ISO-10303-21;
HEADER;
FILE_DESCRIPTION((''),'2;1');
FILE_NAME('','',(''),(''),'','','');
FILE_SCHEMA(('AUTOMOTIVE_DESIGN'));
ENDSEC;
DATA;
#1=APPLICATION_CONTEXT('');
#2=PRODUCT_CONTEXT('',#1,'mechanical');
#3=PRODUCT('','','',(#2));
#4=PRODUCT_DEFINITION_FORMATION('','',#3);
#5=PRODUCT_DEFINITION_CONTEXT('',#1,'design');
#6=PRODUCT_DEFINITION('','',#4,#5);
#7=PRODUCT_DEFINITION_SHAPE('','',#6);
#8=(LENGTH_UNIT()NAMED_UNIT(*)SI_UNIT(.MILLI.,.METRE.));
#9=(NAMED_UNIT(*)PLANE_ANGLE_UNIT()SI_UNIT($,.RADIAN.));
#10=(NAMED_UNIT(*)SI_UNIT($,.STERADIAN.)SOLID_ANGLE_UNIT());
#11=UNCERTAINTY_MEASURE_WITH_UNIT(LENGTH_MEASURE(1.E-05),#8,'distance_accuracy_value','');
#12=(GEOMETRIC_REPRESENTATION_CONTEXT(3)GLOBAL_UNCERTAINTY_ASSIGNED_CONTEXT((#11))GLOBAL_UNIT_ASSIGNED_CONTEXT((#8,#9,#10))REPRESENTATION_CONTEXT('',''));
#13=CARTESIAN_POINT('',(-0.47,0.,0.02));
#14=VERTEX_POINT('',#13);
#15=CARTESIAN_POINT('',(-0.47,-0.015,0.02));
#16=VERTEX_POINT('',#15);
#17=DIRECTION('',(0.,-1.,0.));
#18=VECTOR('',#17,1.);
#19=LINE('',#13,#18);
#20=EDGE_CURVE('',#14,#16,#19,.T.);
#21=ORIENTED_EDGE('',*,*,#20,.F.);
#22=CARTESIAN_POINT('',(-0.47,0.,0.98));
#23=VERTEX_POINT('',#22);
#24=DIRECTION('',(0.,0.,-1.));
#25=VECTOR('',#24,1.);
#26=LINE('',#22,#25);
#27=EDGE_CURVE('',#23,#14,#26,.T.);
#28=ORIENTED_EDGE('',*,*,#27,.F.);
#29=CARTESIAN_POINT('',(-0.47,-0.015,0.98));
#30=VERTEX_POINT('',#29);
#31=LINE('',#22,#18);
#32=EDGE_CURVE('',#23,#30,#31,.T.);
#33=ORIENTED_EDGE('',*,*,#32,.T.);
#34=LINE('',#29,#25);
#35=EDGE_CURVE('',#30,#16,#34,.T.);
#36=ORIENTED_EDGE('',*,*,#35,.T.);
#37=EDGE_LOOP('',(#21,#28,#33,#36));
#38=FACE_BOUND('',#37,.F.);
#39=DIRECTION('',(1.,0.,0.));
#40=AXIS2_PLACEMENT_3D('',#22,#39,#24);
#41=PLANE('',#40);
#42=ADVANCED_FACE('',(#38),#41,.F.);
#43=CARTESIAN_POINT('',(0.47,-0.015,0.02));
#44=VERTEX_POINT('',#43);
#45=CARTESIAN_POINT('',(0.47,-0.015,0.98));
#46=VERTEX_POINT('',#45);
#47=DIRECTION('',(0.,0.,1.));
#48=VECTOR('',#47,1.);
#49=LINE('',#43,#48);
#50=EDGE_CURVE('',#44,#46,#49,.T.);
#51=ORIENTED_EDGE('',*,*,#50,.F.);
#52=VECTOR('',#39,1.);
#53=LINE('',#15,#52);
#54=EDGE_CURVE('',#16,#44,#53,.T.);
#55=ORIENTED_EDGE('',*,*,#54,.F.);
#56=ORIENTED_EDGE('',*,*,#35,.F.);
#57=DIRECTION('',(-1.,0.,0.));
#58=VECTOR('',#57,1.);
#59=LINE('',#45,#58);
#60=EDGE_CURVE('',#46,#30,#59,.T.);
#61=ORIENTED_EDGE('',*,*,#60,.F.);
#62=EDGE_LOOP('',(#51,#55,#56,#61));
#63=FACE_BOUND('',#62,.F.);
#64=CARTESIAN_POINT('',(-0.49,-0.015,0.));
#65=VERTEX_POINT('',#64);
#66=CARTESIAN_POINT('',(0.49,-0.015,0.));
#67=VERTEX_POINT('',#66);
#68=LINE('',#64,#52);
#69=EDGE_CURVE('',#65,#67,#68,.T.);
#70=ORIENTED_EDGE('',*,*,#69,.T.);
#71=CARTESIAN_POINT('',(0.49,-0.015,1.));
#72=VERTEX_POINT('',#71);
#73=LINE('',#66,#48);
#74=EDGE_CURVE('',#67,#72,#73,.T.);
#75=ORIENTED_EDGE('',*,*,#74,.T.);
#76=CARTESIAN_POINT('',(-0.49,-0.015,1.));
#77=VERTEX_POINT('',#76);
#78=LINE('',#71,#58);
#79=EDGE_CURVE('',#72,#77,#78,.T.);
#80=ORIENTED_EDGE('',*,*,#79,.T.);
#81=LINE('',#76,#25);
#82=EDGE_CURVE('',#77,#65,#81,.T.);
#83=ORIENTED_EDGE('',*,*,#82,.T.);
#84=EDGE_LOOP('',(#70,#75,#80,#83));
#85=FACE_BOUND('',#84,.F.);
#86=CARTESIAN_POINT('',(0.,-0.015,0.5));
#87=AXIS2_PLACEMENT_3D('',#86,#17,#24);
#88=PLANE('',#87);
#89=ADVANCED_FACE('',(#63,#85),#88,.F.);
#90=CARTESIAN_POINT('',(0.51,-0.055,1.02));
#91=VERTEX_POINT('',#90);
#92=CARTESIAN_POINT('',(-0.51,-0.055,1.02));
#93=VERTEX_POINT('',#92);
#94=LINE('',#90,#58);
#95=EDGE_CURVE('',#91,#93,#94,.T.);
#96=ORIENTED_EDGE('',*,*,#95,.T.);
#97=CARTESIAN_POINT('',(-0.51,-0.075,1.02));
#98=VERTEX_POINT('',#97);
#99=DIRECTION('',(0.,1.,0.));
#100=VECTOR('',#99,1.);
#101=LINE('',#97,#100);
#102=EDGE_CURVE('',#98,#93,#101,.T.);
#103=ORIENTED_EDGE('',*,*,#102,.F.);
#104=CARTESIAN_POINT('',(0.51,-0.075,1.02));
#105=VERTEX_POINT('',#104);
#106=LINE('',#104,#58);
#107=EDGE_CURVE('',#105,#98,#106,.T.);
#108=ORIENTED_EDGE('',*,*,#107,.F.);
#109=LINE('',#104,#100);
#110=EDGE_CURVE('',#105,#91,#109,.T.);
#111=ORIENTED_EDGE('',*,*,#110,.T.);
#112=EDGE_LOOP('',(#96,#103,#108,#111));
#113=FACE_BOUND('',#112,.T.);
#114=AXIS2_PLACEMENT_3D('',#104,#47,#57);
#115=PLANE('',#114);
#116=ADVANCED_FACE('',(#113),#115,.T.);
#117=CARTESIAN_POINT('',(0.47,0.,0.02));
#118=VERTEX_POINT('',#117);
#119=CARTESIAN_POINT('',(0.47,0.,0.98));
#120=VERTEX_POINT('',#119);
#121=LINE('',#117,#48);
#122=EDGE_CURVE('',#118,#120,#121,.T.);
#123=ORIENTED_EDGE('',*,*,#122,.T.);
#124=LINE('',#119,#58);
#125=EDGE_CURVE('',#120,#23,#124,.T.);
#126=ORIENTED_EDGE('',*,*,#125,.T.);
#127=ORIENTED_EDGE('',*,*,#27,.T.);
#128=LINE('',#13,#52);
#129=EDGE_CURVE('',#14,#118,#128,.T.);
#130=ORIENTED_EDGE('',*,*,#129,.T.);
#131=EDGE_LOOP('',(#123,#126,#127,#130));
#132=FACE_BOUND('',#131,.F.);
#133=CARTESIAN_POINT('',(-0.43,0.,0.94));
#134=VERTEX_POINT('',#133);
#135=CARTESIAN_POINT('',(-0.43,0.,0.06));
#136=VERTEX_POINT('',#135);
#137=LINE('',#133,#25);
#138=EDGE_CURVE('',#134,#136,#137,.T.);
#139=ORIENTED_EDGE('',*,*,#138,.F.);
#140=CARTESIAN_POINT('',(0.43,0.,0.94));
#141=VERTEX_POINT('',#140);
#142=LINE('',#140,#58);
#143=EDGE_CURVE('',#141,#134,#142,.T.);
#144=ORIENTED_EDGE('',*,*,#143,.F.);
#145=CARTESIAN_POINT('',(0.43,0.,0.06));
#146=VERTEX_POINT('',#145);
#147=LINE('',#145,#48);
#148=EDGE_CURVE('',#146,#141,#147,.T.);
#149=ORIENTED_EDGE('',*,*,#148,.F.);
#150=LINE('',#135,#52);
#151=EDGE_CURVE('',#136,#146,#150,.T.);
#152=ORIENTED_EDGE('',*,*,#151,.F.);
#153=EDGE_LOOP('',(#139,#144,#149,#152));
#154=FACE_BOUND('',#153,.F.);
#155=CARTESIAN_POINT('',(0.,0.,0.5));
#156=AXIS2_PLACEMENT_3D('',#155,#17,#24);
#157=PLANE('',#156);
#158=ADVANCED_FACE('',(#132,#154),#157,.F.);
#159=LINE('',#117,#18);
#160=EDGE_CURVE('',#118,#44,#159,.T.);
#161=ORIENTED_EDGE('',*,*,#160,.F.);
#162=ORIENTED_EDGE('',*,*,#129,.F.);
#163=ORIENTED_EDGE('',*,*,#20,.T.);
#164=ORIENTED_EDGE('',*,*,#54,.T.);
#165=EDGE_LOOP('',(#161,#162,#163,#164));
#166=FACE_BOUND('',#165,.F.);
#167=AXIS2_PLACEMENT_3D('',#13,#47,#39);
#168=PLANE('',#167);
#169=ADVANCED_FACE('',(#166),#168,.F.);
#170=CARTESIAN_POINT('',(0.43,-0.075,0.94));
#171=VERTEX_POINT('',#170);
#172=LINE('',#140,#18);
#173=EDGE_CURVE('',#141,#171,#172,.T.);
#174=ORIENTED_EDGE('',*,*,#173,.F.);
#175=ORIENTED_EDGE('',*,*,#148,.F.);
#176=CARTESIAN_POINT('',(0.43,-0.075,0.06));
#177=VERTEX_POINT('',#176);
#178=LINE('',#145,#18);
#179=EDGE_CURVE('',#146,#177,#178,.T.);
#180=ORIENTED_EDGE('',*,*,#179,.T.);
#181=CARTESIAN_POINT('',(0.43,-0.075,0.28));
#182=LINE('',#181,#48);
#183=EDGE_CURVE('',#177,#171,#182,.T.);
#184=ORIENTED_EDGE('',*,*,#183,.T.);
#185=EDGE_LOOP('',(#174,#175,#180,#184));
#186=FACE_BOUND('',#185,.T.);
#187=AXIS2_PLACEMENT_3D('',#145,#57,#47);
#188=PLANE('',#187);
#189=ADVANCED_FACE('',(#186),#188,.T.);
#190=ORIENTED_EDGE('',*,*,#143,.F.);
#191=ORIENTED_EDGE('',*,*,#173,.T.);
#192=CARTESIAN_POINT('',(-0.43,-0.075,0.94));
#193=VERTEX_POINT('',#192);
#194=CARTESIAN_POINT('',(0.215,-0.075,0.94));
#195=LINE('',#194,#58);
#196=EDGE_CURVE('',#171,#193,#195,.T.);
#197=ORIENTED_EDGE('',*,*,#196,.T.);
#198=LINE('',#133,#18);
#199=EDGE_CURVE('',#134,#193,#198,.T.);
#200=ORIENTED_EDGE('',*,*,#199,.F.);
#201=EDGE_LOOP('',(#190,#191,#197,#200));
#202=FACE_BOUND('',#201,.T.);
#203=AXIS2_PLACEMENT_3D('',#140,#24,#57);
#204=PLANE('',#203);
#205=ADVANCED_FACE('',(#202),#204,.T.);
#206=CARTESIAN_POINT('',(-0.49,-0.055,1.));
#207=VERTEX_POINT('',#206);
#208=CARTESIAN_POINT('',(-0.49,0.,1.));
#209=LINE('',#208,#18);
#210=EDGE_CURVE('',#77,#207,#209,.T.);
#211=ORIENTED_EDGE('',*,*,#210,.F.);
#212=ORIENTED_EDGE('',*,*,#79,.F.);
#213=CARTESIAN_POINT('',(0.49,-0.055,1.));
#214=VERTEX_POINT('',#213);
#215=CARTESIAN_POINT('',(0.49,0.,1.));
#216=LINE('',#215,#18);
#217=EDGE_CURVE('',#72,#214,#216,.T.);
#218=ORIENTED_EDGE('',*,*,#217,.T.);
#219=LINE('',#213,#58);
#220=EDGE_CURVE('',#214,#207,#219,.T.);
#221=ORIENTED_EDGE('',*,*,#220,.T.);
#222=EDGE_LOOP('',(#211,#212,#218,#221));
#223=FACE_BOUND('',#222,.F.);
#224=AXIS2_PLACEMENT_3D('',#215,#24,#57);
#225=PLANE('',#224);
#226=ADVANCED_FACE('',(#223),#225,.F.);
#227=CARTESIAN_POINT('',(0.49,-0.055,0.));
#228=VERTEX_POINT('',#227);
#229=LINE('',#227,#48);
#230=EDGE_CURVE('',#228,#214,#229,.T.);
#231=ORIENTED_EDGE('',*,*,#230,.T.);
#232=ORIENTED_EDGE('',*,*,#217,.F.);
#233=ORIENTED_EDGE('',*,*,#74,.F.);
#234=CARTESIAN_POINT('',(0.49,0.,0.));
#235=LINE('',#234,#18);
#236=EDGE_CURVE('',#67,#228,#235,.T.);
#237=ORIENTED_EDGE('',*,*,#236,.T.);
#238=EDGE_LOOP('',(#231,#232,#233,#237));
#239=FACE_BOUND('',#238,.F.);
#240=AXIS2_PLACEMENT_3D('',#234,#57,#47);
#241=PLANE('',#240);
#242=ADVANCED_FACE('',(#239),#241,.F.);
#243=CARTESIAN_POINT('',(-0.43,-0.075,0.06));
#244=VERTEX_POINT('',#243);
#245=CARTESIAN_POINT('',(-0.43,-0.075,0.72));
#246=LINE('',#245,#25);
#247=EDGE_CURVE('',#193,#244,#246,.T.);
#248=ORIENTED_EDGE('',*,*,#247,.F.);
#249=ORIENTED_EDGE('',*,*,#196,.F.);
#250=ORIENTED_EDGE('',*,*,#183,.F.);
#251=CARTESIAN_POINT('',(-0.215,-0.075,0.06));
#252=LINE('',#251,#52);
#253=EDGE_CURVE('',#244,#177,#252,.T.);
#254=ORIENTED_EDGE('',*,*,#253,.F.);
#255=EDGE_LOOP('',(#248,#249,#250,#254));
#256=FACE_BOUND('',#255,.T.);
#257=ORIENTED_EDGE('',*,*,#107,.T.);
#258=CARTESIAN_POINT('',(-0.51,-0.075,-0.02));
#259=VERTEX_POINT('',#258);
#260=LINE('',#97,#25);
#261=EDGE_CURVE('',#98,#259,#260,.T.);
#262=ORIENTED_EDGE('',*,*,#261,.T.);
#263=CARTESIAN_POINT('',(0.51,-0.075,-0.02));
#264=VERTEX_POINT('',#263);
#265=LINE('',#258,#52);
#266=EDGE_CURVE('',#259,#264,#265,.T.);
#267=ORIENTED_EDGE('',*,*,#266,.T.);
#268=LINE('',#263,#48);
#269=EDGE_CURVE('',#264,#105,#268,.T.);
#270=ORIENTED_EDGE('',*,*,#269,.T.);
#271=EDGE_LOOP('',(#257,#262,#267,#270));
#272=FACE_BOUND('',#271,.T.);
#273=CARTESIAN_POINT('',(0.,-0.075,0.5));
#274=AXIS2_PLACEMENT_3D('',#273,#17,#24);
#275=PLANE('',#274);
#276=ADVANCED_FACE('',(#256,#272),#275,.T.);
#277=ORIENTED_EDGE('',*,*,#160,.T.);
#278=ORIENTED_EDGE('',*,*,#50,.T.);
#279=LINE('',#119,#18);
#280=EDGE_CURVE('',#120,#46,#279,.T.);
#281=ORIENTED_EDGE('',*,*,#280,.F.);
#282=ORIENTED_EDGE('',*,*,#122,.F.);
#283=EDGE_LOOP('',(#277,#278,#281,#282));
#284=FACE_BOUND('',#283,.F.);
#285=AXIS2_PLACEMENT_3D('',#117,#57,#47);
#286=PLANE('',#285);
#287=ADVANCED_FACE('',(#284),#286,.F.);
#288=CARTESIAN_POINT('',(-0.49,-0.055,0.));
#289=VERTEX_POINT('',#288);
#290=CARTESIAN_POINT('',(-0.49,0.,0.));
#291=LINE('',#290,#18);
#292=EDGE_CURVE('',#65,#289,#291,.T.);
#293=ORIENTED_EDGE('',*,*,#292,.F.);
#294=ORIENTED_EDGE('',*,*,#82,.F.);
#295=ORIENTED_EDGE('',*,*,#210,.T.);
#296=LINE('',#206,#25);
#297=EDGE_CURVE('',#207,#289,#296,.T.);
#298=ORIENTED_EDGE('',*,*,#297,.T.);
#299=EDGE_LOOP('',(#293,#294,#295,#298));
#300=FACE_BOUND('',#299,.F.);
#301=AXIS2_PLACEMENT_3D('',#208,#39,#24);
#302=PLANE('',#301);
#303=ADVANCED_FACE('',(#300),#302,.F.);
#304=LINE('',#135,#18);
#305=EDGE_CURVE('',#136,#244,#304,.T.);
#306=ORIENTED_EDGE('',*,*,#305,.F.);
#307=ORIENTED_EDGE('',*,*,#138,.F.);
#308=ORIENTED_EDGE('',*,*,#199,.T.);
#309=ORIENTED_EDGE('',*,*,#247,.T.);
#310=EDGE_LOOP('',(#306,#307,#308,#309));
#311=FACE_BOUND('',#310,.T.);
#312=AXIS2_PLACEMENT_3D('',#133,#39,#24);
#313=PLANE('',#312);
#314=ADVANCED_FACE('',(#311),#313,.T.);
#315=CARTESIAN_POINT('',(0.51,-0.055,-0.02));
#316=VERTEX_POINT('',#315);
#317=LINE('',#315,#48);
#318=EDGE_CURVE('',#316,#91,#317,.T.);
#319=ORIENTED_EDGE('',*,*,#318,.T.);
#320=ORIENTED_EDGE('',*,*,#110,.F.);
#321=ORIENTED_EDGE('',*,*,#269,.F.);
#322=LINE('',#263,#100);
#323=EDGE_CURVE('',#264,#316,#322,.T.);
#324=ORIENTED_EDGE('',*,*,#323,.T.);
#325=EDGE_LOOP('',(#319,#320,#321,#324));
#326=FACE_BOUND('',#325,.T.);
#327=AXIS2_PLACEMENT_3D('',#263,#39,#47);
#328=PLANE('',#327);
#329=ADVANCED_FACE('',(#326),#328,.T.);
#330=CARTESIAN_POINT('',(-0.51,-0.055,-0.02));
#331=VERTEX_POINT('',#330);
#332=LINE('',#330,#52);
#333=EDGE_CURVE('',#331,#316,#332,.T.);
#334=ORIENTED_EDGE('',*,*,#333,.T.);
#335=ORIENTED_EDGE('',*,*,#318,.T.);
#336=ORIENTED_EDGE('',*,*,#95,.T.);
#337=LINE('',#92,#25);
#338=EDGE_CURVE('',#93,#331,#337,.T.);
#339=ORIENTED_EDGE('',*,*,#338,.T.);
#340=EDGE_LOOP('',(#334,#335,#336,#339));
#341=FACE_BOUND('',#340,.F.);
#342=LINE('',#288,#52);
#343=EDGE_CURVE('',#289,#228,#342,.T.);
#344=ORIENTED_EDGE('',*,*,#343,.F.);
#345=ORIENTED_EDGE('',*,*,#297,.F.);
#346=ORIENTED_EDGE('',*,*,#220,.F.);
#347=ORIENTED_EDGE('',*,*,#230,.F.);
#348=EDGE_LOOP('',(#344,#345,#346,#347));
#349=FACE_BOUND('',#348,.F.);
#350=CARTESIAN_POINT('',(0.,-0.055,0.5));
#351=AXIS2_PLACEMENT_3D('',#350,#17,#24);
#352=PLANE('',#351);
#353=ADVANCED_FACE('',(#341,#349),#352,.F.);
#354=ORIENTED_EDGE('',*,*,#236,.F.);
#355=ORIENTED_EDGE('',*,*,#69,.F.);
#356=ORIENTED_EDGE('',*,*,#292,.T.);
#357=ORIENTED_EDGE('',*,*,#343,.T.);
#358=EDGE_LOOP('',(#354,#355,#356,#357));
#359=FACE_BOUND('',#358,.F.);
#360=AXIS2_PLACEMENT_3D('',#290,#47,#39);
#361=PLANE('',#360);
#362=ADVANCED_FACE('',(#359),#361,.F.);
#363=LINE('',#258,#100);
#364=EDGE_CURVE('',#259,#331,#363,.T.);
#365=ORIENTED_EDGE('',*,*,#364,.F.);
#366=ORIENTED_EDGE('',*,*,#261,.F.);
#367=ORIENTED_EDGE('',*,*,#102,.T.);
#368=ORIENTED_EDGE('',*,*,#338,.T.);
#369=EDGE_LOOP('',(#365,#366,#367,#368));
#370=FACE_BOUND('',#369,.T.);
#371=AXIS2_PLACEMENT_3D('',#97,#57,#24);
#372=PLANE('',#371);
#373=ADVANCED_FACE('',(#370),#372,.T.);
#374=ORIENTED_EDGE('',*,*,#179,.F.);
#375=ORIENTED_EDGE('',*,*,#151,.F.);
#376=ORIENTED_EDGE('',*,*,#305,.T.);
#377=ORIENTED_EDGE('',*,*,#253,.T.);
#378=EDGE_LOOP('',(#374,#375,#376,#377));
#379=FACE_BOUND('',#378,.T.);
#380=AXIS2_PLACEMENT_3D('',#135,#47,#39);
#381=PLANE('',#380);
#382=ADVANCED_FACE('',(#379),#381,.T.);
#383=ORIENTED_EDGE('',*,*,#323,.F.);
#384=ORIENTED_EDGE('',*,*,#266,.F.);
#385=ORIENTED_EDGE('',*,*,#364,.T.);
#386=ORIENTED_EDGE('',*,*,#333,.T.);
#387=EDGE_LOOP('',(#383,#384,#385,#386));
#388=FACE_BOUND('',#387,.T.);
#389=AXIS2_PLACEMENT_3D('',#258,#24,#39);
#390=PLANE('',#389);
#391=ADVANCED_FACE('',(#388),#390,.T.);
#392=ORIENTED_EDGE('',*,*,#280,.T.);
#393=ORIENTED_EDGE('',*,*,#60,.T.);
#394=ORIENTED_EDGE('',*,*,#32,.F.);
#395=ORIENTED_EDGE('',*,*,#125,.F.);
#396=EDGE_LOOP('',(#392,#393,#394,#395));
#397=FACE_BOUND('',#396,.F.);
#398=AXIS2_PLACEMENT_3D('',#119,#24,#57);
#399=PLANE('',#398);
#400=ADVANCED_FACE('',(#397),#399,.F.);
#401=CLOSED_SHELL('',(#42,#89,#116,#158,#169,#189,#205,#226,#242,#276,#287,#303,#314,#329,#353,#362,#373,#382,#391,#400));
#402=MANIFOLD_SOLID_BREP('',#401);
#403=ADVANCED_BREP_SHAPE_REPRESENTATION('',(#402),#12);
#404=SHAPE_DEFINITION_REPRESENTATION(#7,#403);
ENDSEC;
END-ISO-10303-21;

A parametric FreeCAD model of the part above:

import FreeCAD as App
import Part
import Sketcher

doc = App.newDocument("Part")
body = doc.addObject("PartDesign::Body", "Body")

# Sketch on XZ plane
sketch1 = body.newObject("Sketcher::SketchObject", "Sketch")
sketch1.AttachmentSupport = (doc.getObject("XZ_Plane"), [""])
sketch1.MapMode = "FlatFace"
sketch1.addGeometry([
    Part.LineSegment(App.Vector(-0.5, 1, 0), App.Vector(-0.5, 0, 0)),
    Part.LineSegment(App.Vector(-0.5, 0, 0), App.Vector(0.5, 0, 0)),
    Part.LineSegment(App.Vector(0.5, 0, 0), App.Vector(0.5, 1, 0)),
    Part.LineSegment(App.Vector(0.5, 1, 0), App.Vector(-0.5, 1, 0)),
], False)
sketch1.addConstraint([
    Sketcher.Constraint("Coincident", 0, 2, 1, 1),
    Sketcher.Constraint("Coincident", 1, 2, 2, 1),
    Sketcher.Constraint("Coincident", 2, 2, 3, 1),
    Sketcher.Constraint("Coincident", 3, 2, 0, 1),
    Sketcher.Constraint("Vertical", 0),
    Sketcher.Constraint("Horizontal", 1),
    Sketcher.Constraint("Vertical", 2),
    Sketcher.Constraint("Horizontal", 3),
    Sketcher.Constraint("Symmetric", 0, 2, 1, 2, -1, 1),
    Sketcher.Constraint("DistanceY", 0, 2, 0, 1, 1.0),
    Sketcher.Constraint("DistanceX", 0, 2, -1, 1, 0.49),
])
pad1 = body.newObject("PartDesign::Pad", "Pad")
pad1.Profile = sketch1
pad1.Length = 0.075

# Sketch on XZ plane
sketch2 = body.newObject("Sketcher::SketchObject", "Sketch001")
sketch2.AttachmentSupport = (doc.getObject("XZ_Plane"), [""])
sketch2.MapMode = "FlatFace"
sketch2.addGeometry([
    Part.LineSegment(App.Vector(-0.4, 0.9, 0), App.Vector(0.4, 0.9, 0)),
    Part.LineSegment(App.Vector(0.4, 0.9, 0), App.Vector(0.4, 0.1, 0)),
    Part.LineSegment(App.Vector(0.4, 0.1, 0), App.Vector(-0.4, 0.1, 0)),
    Part.LineSegment(App.Vector(-0.4, 0.1, 0), App.Vector(-0.4, 0.9, 0)),
], False)
sketch2.addConstraint([
    Sketcher.Constraint("Coincident", 0, 2, 1, 1),
    Sketcher.Constraint("Coincident", 1, 2, 2, 1),
    Sketcher.Constraint("Coincident", 2, 2, 3, 1),
    Sketcher.Constraint("Coincident", 3, 2, 0, 1),
    Sketcher.Constraint("Horizontal", 0),
    Sketcher.Constraint("Vertical", 1),
    Sketcher.Constraint("Horizontal", 2),
    Sketcher.Constraint("Vertical", 3),
    Sketcher.Constraint("DistanceX", 0, 1, 0, 2, 0.86),
    Sketcher.Constraint("DistanceY", 1, 2, 1, 1, 0.88),
    Sketcher.Constraint("DistanceX", -1, 1, 0, 2, 0.43),
    Sketcher.Constraint("DistanceY", -1, 1, 0, 2, 0.94),
])
pocket1 = body.newObject("PartDesign::Pocket", "Pocket")
pocket1.Profile = sketch2
pocket1.Type = "UpToFirst"
pocket1.Reversed = True

# Sketch on XZ plane
sketch3 = body.newObject("Sketcher::SketchObject", "Sketch002")
sketch3.AttachmentSupport = (doc.getObject("XZ_Plane"), [""])
sketch3.MapMode = "FlatFace"
sketch3.addGeometry([
    Part.LineSegment(App.Vector(0.5, 1, 0), App.Vector(0.5, 0, 0)),  # 0
    Part.LineSegment(App.Vector(0.5, 0, 0), App.Vector(-0.5, 0, 0)),  # 1
    Part.LineSegment(App.Vector(-0.5, 0, 0), App.Vector(-0.5, 1, 0)),  # 2
    Part.LineSegment(App.Vector(-0.5, 1, 0), App.Vector(0.5, 1, 0)),  # 3
    Part.LineSegment(App.Vector(-0.5, 0, 0), App.Vector(0.5, 0, 0)),  # 4
    Part.LineSegment(App.Vector(0.5, 0, 0), App.Vector(0.5, 1, 0)),  # 5
    Part.LineSegment(App.Vector(0.5, 1, 0), App.Vector(-0.5, 1, 0)),  # 6
    Part.LineSegment(App.Vector(-0.5, 1, 0), App.Vector(-0.5, 0, 0)),  # 7
], False)
sketch3.addConstraint([
    Sketcher.Constraint("Coincident", 0, 2, 1, 1),
    Sketcher.Constraint("Coincident", 1, 2, 2, 1),
    Sketcher.Constraint("Coincident", 2, 2, 3, 1),
    Sketcher.Constraint("Coincident", 3, 2, 0, 1),
    Sketcher.Constraint("Coincident", 4, 2, 5, 1),
    Sketcher.Constraint("Coincident", 5, 2, 6, 1),
    Sketcher.Constraint("Coincident", 6, 2, 7, 1),
    Sketcher.Constraint("Coincident", 7, 2, 4, 1),
    Sketcher.Constraint("Vertical", 0),
    Sketcher.Constraint("Horizontal", 1),
    Sketcher.Constraint("Vertical", 2),
    Sketcher.Constraint("Horizontal", 3),
    Sketcher.Constraint("Horizontal", 4),
    Sketcher.Constraint("Vertical", 5),
    Sketcher.Constraint("Horizontal", 6),
    Sketcher.Constraint("Vertical", 7),
    Sketcher.Constraint("Symmetric", 0, 2, 1, 2, -1, 1),
    Sketcher.Constraint("DistanceY", 0, 2, 0, 1, 1.0),
    Sketcher.Constraint("DistanceX", 1, 2, 1, 1, 0.98),
    Sketcher.Constraint("DistanceX", 4, 1, 4, 2, 0.94),
    Sketcher.Constraint("DistanceY", 5, 1, 5, 2, 0.96),
    Sketcher.Constraint("DistanceX", -1, 1, 4, 2, 0.47),
    Sketcher.Constraint("DistanceY", -1, 1, 4, 2, 0.02),
])
pocket2 = body.newObject("PartDesign::Pocket", "Pocket001")
pocket2.Profile = sketch3
pocket2.Length = 0.015
pocket2.Reversed = True

# Sketch on XZ plane
sketch4 = body.newObject("Sketcher::SketchObject", "Sketch003")
sketch4.AttachmentSupport = (doc.getObject("XZ_Plane"), [""])
sketch4.MapMode = "FlatFace"
sketch4.AttachmentOffset = App.Placement(App.Vector(0, 0, 0.075), App.Rotation())
sketch4.addGeometry([
    Part.LineSegment(App.Vector(0.5, 1, 0), App.Vector(-0.5, 1, 0)),  # 0
    Part.LineSegment(App.Vector(-0.5, 1, 0), App.Vector(-0.5, 0, 0)),  # 1
    Part.LineSegment(App.Vector(-0.5, 0, 0), App.Vector(0.5, 0, 0)),  # 2
    Part.LineSegment(App.Vector(0.5, 0, 0), App.Vector(0.5, 1, 0)),  # 3
    Part.LineSegment(App.Vector(-0.5, 1, 0), App.Vector(0.5, 1, 0)),  # 4
    Part.LineSegment(App.Vector(0.5, 1, 0), App.Vector(0.5, 0, 0)),  # 5
    Part.LineSegment(App.Vector(0.5, 0, 0), App.Vector(-0.5, 0, 0)),  # 6
    Part.LineSegment(App.Vector(-0.5, 0, 0), App.Vector(-0.5, 1, 0)),  # 7
], False)
sketch4.addConstraint([
    Sketcher.Constraint("Coincident", 0, 2, 1, 1),
    Sketcher.Constraint("Coincident", 1, 2, 2, 1),
    Sketcher.Constraint("Coincident", 2, 2, 3, 1),
    Sketcher.Constraint("Coincident", 3, 2, 0, 1),
    Sketcher.Constraint("Coincident", 4, 2, 5, 1),
    Sketcher.Constraint("Coincident", 5, 2, 6, 1),
    Sketcher.Constraint("Coincident", 6, 2, 7, 1),
    Sketcher.Constraint("Coincident", 7, 2, 4, 1),
    Sketcher.Constraint("Horizontal", 0),
    Sketcher.Constraint("Vertical", 1),
    Sketcher.Constraint("Horizontal", 2),
    Sketcher.Constraint("Vertical", 3),
    Sketcher.Constraint("Horizontal", 4),
    Sketcher.Constraint("Vertical", 5),
    Sketcher.Constraint("Horizontal", 6),
    Sketcher.Constraint("Vertical", 7),
    Sketcher.Constraint("Symmetric", 5, 2, 6, 2, -1, 1),
    Sketcher.Constraint("DistanceY", 5, 2, 5, 1, 1.0),
    Sketcher.Constraint("DistanceX", 0, 2, 4, 2, 1.0),
    Sketcher.Constraint("DistanceX", 6, 2, 2, 2, 1.0),
    Sketcher.Constraint("DistanceX", 0, 2, 0, 1, 1.02),
    Sketcher.Constraint("DistanceY", 1, 2, 1, 1, 1.04),
    Sketcher.Constraint("DistanceY", -1, 1, 0, 2, 1.02),
])
pad2 = body.newObject("PartDesign::Pad", "Pad001")
pad2.Profile = sketch4
pad2.Length = 0.02
pad2.Reversed = True

doc.recompute()
